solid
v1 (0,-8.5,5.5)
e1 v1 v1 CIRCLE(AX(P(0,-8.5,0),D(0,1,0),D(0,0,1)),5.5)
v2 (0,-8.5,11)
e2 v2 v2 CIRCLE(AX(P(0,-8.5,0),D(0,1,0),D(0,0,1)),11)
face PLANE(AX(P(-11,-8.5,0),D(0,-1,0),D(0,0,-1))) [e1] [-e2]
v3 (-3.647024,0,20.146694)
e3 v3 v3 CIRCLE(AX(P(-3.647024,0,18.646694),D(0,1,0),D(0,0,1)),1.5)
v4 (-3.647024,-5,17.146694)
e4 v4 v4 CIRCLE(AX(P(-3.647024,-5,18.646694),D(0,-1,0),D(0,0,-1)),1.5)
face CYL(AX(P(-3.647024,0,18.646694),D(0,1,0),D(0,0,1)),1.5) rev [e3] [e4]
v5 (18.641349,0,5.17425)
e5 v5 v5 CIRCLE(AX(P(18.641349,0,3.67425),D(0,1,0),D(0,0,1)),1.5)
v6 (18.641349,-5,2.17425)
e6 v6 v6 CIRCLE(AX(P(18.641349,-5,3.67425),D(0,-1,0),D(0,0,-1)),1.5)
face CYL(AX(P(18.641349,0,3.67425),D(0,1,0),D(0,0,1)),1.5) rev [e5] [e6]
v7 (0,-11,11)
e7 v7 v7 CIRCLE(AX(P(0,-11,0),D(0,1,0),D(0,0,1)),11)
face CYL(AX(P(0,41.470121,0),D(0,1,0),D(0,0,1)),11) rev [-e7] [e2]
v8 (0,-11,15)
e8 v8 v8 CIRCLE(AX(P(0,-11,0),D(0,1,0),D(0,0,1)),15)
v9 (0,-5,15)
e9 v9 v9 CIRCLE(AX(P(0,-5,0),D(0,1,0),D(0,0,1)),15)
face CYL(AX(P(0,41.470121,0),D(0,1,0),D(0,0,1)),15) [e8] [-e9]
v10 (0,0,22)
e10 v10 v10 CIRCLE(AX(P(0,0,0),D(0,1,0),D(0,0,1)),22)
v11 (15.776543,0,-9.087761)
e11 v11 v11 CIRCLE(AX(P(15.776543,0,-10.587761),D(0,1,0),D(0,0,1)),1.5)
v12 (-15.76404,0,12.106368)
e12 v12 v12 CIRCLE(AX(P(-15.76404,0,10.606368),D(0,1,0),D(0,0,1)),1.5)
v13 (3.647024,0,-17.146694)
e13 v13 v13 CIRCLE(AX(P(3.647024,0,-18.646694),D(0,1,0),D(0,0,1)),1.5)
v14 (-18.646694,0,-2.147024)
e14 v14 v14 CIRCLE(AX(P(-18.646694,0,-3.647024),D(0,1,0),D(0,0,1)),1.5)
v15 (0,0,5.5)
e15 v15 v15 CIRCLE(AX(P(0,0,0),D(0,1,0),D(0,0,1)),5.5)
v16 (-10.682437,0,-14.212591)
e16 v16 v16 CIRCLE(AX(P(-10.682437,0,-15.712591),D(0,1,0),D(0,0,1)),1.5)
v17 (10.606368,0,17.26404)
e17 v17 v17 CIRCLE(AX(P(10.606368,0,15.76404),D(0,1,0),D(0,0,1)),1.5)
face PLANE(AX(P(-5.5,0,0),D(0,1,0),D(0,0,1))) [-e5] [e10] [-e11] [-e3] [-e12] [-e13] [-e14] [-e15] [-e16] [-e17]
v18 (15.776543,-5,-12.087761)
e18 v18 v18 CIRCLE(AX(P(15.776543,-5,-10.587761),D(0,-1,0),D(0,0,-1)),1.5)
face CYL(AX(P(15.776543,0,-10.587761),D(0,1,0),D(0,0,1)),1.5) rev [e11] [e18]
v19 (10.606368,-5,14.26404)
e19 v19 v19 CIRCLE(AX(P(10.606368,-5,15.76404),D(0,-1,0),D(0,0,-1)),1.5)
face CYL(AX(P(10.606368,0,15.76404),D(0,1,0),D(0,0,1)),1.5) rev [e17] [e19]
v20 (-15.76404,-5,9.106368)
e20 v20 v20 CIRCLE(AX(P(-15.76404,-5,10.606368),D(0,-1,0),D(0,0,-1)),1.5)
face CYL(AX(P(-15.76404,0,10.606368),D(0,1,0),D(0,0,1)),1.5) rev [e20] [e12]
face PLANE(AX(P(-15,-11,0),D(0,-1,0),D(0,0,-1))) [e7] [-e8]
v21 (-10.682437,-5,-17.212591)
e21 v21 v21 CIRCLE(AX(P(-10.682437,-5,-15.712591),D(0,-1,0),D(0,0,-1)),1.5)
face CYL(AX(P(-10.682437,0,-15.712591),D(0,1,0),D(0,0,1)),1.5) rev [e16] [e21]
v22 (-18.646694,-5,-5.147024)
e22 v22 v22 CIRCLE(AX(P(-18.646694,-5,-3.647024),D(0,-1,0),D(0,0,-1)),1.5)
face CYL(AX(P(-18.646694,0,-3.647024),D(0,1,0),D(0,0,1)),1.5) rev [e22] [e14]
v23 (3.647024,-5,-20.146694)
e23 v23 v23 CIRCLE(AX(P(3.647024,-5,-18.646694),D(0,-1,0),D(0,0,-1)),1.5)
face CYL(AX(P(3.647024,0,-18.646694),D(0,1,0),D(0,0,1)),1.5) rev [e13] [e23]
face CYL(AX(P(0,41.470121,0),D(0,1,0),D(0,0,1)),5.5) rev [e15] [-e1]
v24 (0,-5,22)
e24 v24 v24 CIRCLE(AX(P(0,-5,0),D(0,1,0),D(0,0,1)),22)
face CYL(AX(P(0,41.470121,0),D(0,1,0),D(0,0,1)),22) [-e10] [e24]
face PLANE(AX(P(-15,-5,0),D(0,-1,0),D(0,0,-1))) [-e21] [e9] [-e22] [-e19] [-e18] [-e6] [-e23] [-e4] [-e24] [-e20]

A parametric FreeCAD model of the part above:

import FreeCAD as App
import Part
import Sketcher
from FreeCAD import Vector
Q = App.Units.Quantity

doc = App.newDocument("Part")
body = doc.addObject("PartDesign::Body", "Body")

sketch1 = body.newObject("Sketcher::SketchObject", "Sketch")
sketch1.AttachmentSupport = (doc.getObject("XY_Plane"), [""])
sketch1.MapMode = "FlatFace"
sketch1.addGeometry(Part.LineSegment(Vector(-5.5, 0, 0), Vector(-22, 0, 0)), False)
sketch1.addGeometry(Part.LineSegment(Vector(-22, 0, 0), Vector(-22, -5, 0)), False)
sketch1.addGeometry(Part.LineSegment(Vector(-22, -5, 0), Vector(-15, -5, 0)), False)
sketch1.addGeometry(Part.LineSegment(Vector(-15, -5, 0), Vector(-15, -11, 0)), False)
sketch1.addGeometry(Part.LineSegment(Vector(-15, -11, 0), Vector(-11, -11, 0)), False)
sketch1.addGeometry(Part.LineSegment(Vector(-11, -11, 0), Vector(-11, -8.5, 0)), False)
sketch1.addGeometry(Part.LineSegment(Vector(-11, -8.5, 0), Vector(-5.5, -8.5, 0)), False)
sketch1.addGeometry(Part.LineSegment(Vector(-5.5, -8.5, 0), Vector(-5.5, 0, 0)), False)
sketch1.addConstraint(Sketcher.Constraint("Coincident", 0, 2, 1, 1))
sketch1.addConstraint(Sketcher.Constraint("Coincident", 1, 2, 2, 1))
sketch1.addConstraint(Sketcher.Constraint("Coincident", 2, 2, 3, 1))
sketch1.addConstraint(Sketcher.Constraint("Coincident", 3, 2, 4, 1))
sketch1.addConstraint(Sketcher.Constraint("Coincident", 4, 2, 5, 1))
sketch1.addConstraint(Sketcher.Constraint("Coincident", 5, 2, 6, 1))
sketch1.addConstraint(Sketcher.Constraint("Coincident", 6, 2, 7, 1))
sketch1.addConstraint(Sketcher.Constraint("Coincident", 7, 2, 0, 1))
sketch1.addConstraint(Sketcher.Constraint("Horizontal", 0))
sketch1.addConstraint(Sketcher.Constraint("Vertical", 1))
sketch1.addConstraint(Sketcher.Constraint("Horizontal", 2))
sketch1.addConstraint(Sketcher.Constraint("Vertical", 3))
sketch1.addConstraint(Sketcher.Constraint("Horizontal", 4))
sketch1.addConstraint(Sketcher.Constraint("Vertical", 5))
sketch1.addConstraint(Sketcher.Constraint("Horizontal", 6))
sketch1.addConstraint(Sketcher.Constraint("Vertical", 7))
sketch1.addConstraint(Sketcher.Constraint("PointOnObject", 0, 2, -1))
sketch1.addConstraint(Sketcher.Constraint("DistanceX", 2, 1, 2, 2, Q("7 mm")))
sketch1.addConstraint(Sketcher.Constraint("DistanceX", 4, 1, 4, 2, Q("4 mm")))
sketch1.addConstraint(Sketcher.Constraint("DistanceY", 1, 2, 1, 1, Q("5 mm")))
sketch1.addConstraint(Sketcher.Constraint("DistanceY", 3, 2, 3, 1, Q("6 mm")))
sketch1.addConstraint(Sketcher.Constraint("DistanceX", 0, 2, 0, 1, Q("16.5 mm")))
sketch1.addConstraint(Sketcher.Constraint("DistanceY", 5, 1, 5, 2, Q("2.5 mm")))
sketch1.addConstraint(Sketcher.Constraint("DistanceX", 0, 2, -1, 1, Q("22 mm")))
revolution = body.newObject("PartDesign::Revolution", "Revolution")
revolution.Profile = sketch1
revolution.ReferenceAxis = (sketch1, ["V_Axis"])
revolution.Angle = 360

sketch2 = body.newObject("Sketcher::SketchObject", "Sketch001")
sketch2.AttachmentSupport = (doc.getObject("XZ_Plane"), [""])
sketch2.MapMode = "FlatFace"
sketch2.addGeometry(Part.Circle(Vector(3.647024, -18.646694, 0), Vector(0, 0, 1), 1.5), False)
sketch2.addGeometry(Part.Circle(Vector(15.776543, -10.587761, 0), Vector(0, 0, 1), 1.5), False)
sketch2.addGeometry(Part.Circle(Vector(18.641349, 3.67425, 0), Vector(0, 0, 1), 1.5), False)
sketch2.addGeometry(Part.Circle(Vector(-10.682437, -15.712591, 0), Vector(0, 0, 1), 1.5), False)
sketch2.addGeometry(Part.Circle(Vector(-18.646694, -3.647024, 0), Vector(0, 0, 1), 1.5), False)
sketch2.addGeometry(Part.Circle(Vector(-15.76404, 10.606368, 0), Vector(0, 0, 1), 1.5), False)
sketch2.addGeometry(Part.Circle(Vector(-3.647024, 18.646694, 0), Vector(0, 0, 1), 1.5), False)
sketch2.addGeometry(Part.Circle(Vector(10.606368, 15.76404, 0), Vector(0, 0, 1), 1.5), False)
sketch2.addConstraint(Sketcher.Constraint("Equal", 0, 1))
sketch2.addConstraint(Sketcher.Constraint("Equal", 1, 2))
sketch2.addConstraint(Sketcher.Constraint("Equal", 2, 3))
sketch2.addConstraint(Sketcher.Constraint("Equal", 3, 4))
sketch2.addConstraint(Sketcher.Constraint("Equal", 4, 5))
sketch2.addConstraint(Sketcher.Constraint("Equal", 5, 6))
sketch2.addConstraint(Sketcher.Constraint("Equal", 6, 7))
sketch2.addConstraint(Sketcher.Constraint("Symmetric", 0, 3, 6, 3, -1, 1))
sketch2.addConstraint(Sketcher.Constraint("Diameter", 0, Q("3 mm")))
sketch2.addConstraint(Sketcher.Constraint("DistanceY", 1, 3, 7, 3, Q("26.351801 mm")))
sketch2.addConstraint(Sketcher.Constraint("DistanceY", 1, 3, -1, 1, Q("10.587761 mm")))
sketch2.addConstraint(Sketcher.Constraint("DistanceX", -1, 1, 2, 3, Q("18.641349 mm")))
sketch2.addConstraint(Sketcher.Constraint("DistanceY", -1, 1, 2, 3, Q("3.67425 mm")))
sketch2.addConstraint(Sketcher.Constraint("DistanceY", 3, 3, -1, 1, Q("15.712591 mm")))
sketch2.addConstraint(Sketcher.Constraint("DistanceX", 5, 3, -1, 1, Q("15.76404 mm")))
sketch2.addConstraint(Sketcher.Constraint("DistanceY", -1, 1, 5, 3, Q("10.606368 mm")))
sketch2.addConstraint(Sketcher.Constraint("DistanceX", -1, 1, 7, 3, Q("10.606368 mm")))
sketch2.addConstraint(Sketcher.Constraint("DistanceX", 0, 3, 1, 3, Q("12.129519 mm")))
sketch2.addConstraint(Sketcher.Constraint("DistanceX", 3, 3, 0, 3, Q("14.329462 mm")))
sketch2.addConstraint(Sketcher.Constraint("DistanceX", 4, 3, 0, 3, Q("22.293719 mm")))
sketch2.addConstraint(Sketcher.Constraint("DistanceY", 0, 3, 4, 3, Q("14.99967 mm")))
sketch2.addConstraint(Sketcher.Constraint("DistanceX", 4, 3, 6, 3, Q("14.99967 mm")))
sketch2.addConstraint(Sketcher.Constraint("DistanceY", 4, 3, 6, 3, Q("22.293719 mm")))
doc.recompute()
hole = body.newObject("PartDesign::Hole", "Hole")
hole.Profile = sketch2
hole.ThreadType = "None"
hole.Diameter = 3
hole.DepthType = "ThroughAll"
hole.Reversed = True

doc.recompute()
